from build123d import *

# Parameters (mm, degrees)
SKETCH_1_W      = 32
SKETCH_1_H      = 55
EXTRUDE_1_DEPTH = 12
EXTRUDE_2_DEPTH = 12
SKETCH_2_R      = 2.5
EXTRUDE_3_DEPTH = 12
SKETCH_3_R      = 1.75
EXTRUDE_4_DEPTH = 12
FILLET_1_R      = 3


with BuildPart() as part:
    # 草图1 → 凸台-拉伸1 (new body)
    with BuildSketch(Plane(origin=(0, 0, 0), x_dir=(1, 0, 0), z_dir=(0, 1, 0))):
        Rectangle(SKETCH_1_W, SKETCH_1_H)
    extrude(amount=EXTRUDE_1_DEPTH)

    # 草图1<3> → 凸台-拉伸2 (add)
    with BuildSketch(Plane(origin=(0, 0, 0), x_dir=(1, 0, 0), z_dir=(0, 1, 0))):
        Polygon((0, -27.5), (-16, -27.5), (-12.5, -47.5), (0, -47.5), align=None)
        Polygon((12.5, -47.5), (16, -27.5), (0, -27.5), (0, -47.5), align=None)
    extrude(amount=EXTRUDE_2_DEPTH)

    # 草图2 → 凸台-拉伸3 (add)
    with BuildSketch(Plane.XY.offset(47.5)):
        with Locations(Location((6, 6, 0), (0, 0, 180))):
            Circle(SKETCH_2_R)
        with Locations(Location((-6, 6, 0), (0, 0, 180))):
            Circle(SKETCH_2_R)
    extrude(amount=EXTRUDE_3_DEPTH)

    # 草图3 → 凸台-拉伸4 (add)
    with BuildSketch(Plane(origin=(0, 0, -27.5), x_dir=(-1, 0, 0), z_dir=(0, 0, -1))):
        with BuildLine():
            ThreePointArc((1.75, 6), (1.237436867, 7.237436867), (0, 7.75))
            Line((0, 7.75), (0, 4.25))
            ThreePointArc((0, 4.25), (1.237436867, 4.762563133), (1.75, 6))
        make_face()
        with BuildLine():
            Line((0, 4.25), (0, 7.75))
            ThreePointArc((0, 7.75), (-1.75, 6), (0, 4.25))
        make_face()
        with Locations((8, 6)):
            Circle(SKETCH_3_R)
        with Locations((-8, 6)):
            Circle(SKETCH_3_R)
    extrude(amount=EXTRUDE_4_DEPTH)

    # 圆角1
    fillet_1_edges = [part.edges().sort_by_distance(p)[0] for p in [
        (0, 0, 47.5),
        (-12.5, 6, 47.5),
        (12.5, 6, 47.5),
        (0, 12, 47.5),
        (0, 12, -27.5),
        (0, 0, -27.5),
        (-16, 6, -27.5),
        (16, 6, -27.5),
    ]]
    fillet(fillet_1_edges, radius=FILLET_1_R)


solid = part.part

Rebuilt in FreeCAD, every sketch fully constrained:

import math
import FreeCAD as App
import Part
import Sketcher
from FreeCAD import Vector
Q = App.Units.Quantity


def edges_at(feature, points):
    """Names of the edges that pass closest to the given points."""
    edges = feature.Shape.Edges
    near = lambda p: min(range(len(edges)), key=lambda i: edges[i].distToShape(Part.Vertex(*p))[0])
    return sorted({f"Edge{near(p) + 1}" for p in points})

doc = App.newDocument("Part")
body = doc.addObject("PartDesign::Body", "Body")

# Sketch on XZ plane
sketch1 = body.newObject("Sketcher::SketchObject", "Sketch")
sketch1.AttachmentSupport = (doc.getObject("XZ_Plane"), [""])
sketch1.MapMode = "FlatFace"
sketch1.addGeometry([
    Part.LineSegment(Vector(-16, -28, 0), Vector(-16, 28, 0)),
    Part.LineSegment(Vector(-16, 28, 0), Vector(16, 28, 0)),
    Part.LineSegment(Vector(16, 28, 0), Vector(16, -28, 0)),
    Part.LineSegment(Vector(16, -28, 0), Vector(-16, -28, 0)),
], False)
sketch1.addConstraint([
    Sketcher.Constraint("Coincident", 0, 2, 1, 1),
    Sketcher.Constraint("Coincident", 1, 2, 2, 1),
    Sketcher.Constraint("Coincident", 2, 2, 3, 1),
    Sketcher.Constraint("Coincident", 3, 2, 0, 1),
    Sketcher.Constraint("Vertical", 0),
    Sketcher.Constraint("Horizontal", 1),
    Sketcher.Constraint("Vertical", 2),
    Sketcher.Constraint("Horizontal", 3),
    Sketcher.Constraint("Symmetric", 0, 2, 2, 2, -1, 1),
    Sketcher.Constraint("DistanceX", 1, 1, 1, 2, Q("32 mm")),
    Sketcher.Constraint("DistanceY", 0, 1, 0, 2, Q("55 mm")),
])
pad1 = body.newObject("PartDesign::Pad", "Pad")
pad1.Profile = sketch1
pad1.Length = 12
pad1.Reversed = True

# Sketch on XZ plane
sketch2 = body.newObject("Sketcher::SketchObject", "Sketch001")
sketch2.AttachmentSupport = (doc.getObject("XZ_Plane"), [""])
sketch2.MapMode = "FlatFace"
sketch2.addGeometry([
    Part.LineSegment(Vector(-16, 28, 0), Vector(-12, 48, 0)),
    Part.LineSegment(Vector(-12, 48, 0), Vector(12, 48, 0)),
    Part.LineSegment(Vector(12, 48, 0), Vector(16, 28, 0)),
    Part.LineSegment(Vector(16, 28, 0), Vector(-16, 28, 0)),
], False)
sketch2.addConstraint([
    Sketcher.Constraint("Coincident", 0, 2, 1, 1),
    Sketcher.Constraint("Coincident", 1, 2, 2, 1),
    Sketcher.Constraint("Coincident", 2, 2, 3, 1),
    Sketcher.Constraint("Coincident", 3, 2, 0, 1),
    Sketcher.Constraint("Horizontal", 1),
    Sketcher.Constraint("Horizontal", 3),
    Sketcher.Constraint("Equal", 0, 2),
    Sketcher.Constraint("DistanceX", 1, 1, 1, 2, Q("25 mm")),
    Sketcher.Constraint("DistanceX", 3, 2, 3, 1, Q("32 mm")),
    Sketcher.Constraint("DistanceX", -1, 1, 2, 2, Q("16 mm")),
    Sketcher.Constraint("DistanceY", 2, 2, 1, 2, Q("20 mm")),
    Sketcher.Constraint("DistanceY", -1, 1, 0, 2, Q("47.5 mm")),
])
pad2 = body.newObject("PartDesign::Pad", "Pad001")
pad2.Profile = sketch2
pad2.Length = 12
pad2.Reversed = True

# Sketch on XY plane
sketch3 = body.newObject("Sketcher::SketchObject", "Sketch002")
sketch3.AttachmentSupport = (doc.getObject("XY_Plane"), [""])
sketch3.MapMode = "FlatFace"
sketch3.AttachmentOffset = App.Placement(Vector(0, 0, 47.5), App.Rotation())
sketch3.addGeometry([
    Part.Circle(Vector(6, 6, 0), Vector(0, 0, 1), 2.5),
    Part.Circle(Vector(-6, 6, 0), Vector(0, 0, 1), 2.5),
], False)
sketch3.addConstraint([
    Sketcher.Constraint("Equal", 0, 1),
    Sketcher.Constraint("Symmetric", 0, 3, 1, 3, -2),
    Sketcher.Constraint("Diameter", 0, Q("5 mm")),
    Sketcher.Constraint("DistanceX", -1, 1, 0, 3, Q("6 mm")),
    Sketcher.Constraint("DistanceY", -1, 1, 0, 3, Q("6 mm")),
])
pad3 = body.newObject("PartDesign::Pad", "Pad002")
pad3.Profile = sketch3
pad3.Length = 12

# Sketch on XY plane
sketch4 = body.newObject("Sketcher::SketchObject", "Sketch003")
sketch4.AttachmentSupport = (doc.getObject("XY_Plane"), [""])
sketch4.MapMode = "FlatFace"
sketch4.AttachmentOffset = App.Placement(Vector(0, 0, -27.5), App.Rotation())
sketch4.addGeometry([
    Part.ArcOfCircle(Part.Circle(Vector(0, 6, 0), Vector(0, 0, 1), 1.8), math.radians(90), math.radians(180)),  # 0
    Part.ArcOfCircle(Part.Circle(Vector(0, 6, 0), Vector(0, 0, 1), 1.8), math.radians(-90), math.radians(90)),  # 1
    Part.ArcOfCircle(Part.Circle(Vector(0, 6, 0), Vector(0, 0, 1), 1.8), math.radians(180), math.radians(270)),  # 2
    Part.Circle(Vector(-8, 6, 0), Vector(0, 0, 1), 1.8),  # 3
    Part.Circle(Vector(8, 6, 0), Vector(0, 0, 1), 1.8),  # 4
], False)
sketch4.addConstraint([
    Sketcher.Constraint("Tangent", 0, 1, 1, 2),
    Sketcher.Constraint("Tangent", 1, 1, 2, 2),
    Sketcher.Constraint("Tangent", 2, 1, 0, 2),
    Sketcher.Constraint("Equal", 2, 3),
    Sketcher.Constraint("Equal", 3, 4),
    Sketcher.Constraint("Symmetric", 3, 3, 4, 3, -2),
    Sketcher.Constraint("PointOnObject", 0, 3, -2),
    Sketcher.Constraint("PointOnObject", 0, 1, -2),
    Sketcher.Constraint("PointOnObject", 1, 1, -2),
    Sketcher.Constraint("Horizontal", 2, 3, 3, 3),
    Sketcher.Constraint("Horizontal", 4, 3, 2, 1),
    Sketcher.Constraint("Diameter", 3, Q("3.5 mm")),
    Sketcher.Constraint("DistanceY", -1, 1, 0, 3, Q("6 mm")),
    Sketcher.Constraint("DistanceX", 3, 3, -1, 1, Q("8 mm")),
])
pad4 = body.newObject("PartDesign::Pad", "Pad003")
pad4.Profile = sketch4
pad4.Length = 12
pad4.Reversed = True
doc.recompute()

fillet = body.newObject("PartDesign::Fillet", "Fillet")
fillet.Base = (pad4, edges_at(pad4, [
    (0, 0, 47.5),
    (-12.5, 6, 47.5),
    (12.5, 6, 47.5),
    (0, 12, 47.5),
    (0, 12, -27.5),
    (0, 0, -27.5),
    (-16, 6, -27.5),
    (16, 6, -27.5),
]))
fillet.Radius = 3

doc.recompute()
